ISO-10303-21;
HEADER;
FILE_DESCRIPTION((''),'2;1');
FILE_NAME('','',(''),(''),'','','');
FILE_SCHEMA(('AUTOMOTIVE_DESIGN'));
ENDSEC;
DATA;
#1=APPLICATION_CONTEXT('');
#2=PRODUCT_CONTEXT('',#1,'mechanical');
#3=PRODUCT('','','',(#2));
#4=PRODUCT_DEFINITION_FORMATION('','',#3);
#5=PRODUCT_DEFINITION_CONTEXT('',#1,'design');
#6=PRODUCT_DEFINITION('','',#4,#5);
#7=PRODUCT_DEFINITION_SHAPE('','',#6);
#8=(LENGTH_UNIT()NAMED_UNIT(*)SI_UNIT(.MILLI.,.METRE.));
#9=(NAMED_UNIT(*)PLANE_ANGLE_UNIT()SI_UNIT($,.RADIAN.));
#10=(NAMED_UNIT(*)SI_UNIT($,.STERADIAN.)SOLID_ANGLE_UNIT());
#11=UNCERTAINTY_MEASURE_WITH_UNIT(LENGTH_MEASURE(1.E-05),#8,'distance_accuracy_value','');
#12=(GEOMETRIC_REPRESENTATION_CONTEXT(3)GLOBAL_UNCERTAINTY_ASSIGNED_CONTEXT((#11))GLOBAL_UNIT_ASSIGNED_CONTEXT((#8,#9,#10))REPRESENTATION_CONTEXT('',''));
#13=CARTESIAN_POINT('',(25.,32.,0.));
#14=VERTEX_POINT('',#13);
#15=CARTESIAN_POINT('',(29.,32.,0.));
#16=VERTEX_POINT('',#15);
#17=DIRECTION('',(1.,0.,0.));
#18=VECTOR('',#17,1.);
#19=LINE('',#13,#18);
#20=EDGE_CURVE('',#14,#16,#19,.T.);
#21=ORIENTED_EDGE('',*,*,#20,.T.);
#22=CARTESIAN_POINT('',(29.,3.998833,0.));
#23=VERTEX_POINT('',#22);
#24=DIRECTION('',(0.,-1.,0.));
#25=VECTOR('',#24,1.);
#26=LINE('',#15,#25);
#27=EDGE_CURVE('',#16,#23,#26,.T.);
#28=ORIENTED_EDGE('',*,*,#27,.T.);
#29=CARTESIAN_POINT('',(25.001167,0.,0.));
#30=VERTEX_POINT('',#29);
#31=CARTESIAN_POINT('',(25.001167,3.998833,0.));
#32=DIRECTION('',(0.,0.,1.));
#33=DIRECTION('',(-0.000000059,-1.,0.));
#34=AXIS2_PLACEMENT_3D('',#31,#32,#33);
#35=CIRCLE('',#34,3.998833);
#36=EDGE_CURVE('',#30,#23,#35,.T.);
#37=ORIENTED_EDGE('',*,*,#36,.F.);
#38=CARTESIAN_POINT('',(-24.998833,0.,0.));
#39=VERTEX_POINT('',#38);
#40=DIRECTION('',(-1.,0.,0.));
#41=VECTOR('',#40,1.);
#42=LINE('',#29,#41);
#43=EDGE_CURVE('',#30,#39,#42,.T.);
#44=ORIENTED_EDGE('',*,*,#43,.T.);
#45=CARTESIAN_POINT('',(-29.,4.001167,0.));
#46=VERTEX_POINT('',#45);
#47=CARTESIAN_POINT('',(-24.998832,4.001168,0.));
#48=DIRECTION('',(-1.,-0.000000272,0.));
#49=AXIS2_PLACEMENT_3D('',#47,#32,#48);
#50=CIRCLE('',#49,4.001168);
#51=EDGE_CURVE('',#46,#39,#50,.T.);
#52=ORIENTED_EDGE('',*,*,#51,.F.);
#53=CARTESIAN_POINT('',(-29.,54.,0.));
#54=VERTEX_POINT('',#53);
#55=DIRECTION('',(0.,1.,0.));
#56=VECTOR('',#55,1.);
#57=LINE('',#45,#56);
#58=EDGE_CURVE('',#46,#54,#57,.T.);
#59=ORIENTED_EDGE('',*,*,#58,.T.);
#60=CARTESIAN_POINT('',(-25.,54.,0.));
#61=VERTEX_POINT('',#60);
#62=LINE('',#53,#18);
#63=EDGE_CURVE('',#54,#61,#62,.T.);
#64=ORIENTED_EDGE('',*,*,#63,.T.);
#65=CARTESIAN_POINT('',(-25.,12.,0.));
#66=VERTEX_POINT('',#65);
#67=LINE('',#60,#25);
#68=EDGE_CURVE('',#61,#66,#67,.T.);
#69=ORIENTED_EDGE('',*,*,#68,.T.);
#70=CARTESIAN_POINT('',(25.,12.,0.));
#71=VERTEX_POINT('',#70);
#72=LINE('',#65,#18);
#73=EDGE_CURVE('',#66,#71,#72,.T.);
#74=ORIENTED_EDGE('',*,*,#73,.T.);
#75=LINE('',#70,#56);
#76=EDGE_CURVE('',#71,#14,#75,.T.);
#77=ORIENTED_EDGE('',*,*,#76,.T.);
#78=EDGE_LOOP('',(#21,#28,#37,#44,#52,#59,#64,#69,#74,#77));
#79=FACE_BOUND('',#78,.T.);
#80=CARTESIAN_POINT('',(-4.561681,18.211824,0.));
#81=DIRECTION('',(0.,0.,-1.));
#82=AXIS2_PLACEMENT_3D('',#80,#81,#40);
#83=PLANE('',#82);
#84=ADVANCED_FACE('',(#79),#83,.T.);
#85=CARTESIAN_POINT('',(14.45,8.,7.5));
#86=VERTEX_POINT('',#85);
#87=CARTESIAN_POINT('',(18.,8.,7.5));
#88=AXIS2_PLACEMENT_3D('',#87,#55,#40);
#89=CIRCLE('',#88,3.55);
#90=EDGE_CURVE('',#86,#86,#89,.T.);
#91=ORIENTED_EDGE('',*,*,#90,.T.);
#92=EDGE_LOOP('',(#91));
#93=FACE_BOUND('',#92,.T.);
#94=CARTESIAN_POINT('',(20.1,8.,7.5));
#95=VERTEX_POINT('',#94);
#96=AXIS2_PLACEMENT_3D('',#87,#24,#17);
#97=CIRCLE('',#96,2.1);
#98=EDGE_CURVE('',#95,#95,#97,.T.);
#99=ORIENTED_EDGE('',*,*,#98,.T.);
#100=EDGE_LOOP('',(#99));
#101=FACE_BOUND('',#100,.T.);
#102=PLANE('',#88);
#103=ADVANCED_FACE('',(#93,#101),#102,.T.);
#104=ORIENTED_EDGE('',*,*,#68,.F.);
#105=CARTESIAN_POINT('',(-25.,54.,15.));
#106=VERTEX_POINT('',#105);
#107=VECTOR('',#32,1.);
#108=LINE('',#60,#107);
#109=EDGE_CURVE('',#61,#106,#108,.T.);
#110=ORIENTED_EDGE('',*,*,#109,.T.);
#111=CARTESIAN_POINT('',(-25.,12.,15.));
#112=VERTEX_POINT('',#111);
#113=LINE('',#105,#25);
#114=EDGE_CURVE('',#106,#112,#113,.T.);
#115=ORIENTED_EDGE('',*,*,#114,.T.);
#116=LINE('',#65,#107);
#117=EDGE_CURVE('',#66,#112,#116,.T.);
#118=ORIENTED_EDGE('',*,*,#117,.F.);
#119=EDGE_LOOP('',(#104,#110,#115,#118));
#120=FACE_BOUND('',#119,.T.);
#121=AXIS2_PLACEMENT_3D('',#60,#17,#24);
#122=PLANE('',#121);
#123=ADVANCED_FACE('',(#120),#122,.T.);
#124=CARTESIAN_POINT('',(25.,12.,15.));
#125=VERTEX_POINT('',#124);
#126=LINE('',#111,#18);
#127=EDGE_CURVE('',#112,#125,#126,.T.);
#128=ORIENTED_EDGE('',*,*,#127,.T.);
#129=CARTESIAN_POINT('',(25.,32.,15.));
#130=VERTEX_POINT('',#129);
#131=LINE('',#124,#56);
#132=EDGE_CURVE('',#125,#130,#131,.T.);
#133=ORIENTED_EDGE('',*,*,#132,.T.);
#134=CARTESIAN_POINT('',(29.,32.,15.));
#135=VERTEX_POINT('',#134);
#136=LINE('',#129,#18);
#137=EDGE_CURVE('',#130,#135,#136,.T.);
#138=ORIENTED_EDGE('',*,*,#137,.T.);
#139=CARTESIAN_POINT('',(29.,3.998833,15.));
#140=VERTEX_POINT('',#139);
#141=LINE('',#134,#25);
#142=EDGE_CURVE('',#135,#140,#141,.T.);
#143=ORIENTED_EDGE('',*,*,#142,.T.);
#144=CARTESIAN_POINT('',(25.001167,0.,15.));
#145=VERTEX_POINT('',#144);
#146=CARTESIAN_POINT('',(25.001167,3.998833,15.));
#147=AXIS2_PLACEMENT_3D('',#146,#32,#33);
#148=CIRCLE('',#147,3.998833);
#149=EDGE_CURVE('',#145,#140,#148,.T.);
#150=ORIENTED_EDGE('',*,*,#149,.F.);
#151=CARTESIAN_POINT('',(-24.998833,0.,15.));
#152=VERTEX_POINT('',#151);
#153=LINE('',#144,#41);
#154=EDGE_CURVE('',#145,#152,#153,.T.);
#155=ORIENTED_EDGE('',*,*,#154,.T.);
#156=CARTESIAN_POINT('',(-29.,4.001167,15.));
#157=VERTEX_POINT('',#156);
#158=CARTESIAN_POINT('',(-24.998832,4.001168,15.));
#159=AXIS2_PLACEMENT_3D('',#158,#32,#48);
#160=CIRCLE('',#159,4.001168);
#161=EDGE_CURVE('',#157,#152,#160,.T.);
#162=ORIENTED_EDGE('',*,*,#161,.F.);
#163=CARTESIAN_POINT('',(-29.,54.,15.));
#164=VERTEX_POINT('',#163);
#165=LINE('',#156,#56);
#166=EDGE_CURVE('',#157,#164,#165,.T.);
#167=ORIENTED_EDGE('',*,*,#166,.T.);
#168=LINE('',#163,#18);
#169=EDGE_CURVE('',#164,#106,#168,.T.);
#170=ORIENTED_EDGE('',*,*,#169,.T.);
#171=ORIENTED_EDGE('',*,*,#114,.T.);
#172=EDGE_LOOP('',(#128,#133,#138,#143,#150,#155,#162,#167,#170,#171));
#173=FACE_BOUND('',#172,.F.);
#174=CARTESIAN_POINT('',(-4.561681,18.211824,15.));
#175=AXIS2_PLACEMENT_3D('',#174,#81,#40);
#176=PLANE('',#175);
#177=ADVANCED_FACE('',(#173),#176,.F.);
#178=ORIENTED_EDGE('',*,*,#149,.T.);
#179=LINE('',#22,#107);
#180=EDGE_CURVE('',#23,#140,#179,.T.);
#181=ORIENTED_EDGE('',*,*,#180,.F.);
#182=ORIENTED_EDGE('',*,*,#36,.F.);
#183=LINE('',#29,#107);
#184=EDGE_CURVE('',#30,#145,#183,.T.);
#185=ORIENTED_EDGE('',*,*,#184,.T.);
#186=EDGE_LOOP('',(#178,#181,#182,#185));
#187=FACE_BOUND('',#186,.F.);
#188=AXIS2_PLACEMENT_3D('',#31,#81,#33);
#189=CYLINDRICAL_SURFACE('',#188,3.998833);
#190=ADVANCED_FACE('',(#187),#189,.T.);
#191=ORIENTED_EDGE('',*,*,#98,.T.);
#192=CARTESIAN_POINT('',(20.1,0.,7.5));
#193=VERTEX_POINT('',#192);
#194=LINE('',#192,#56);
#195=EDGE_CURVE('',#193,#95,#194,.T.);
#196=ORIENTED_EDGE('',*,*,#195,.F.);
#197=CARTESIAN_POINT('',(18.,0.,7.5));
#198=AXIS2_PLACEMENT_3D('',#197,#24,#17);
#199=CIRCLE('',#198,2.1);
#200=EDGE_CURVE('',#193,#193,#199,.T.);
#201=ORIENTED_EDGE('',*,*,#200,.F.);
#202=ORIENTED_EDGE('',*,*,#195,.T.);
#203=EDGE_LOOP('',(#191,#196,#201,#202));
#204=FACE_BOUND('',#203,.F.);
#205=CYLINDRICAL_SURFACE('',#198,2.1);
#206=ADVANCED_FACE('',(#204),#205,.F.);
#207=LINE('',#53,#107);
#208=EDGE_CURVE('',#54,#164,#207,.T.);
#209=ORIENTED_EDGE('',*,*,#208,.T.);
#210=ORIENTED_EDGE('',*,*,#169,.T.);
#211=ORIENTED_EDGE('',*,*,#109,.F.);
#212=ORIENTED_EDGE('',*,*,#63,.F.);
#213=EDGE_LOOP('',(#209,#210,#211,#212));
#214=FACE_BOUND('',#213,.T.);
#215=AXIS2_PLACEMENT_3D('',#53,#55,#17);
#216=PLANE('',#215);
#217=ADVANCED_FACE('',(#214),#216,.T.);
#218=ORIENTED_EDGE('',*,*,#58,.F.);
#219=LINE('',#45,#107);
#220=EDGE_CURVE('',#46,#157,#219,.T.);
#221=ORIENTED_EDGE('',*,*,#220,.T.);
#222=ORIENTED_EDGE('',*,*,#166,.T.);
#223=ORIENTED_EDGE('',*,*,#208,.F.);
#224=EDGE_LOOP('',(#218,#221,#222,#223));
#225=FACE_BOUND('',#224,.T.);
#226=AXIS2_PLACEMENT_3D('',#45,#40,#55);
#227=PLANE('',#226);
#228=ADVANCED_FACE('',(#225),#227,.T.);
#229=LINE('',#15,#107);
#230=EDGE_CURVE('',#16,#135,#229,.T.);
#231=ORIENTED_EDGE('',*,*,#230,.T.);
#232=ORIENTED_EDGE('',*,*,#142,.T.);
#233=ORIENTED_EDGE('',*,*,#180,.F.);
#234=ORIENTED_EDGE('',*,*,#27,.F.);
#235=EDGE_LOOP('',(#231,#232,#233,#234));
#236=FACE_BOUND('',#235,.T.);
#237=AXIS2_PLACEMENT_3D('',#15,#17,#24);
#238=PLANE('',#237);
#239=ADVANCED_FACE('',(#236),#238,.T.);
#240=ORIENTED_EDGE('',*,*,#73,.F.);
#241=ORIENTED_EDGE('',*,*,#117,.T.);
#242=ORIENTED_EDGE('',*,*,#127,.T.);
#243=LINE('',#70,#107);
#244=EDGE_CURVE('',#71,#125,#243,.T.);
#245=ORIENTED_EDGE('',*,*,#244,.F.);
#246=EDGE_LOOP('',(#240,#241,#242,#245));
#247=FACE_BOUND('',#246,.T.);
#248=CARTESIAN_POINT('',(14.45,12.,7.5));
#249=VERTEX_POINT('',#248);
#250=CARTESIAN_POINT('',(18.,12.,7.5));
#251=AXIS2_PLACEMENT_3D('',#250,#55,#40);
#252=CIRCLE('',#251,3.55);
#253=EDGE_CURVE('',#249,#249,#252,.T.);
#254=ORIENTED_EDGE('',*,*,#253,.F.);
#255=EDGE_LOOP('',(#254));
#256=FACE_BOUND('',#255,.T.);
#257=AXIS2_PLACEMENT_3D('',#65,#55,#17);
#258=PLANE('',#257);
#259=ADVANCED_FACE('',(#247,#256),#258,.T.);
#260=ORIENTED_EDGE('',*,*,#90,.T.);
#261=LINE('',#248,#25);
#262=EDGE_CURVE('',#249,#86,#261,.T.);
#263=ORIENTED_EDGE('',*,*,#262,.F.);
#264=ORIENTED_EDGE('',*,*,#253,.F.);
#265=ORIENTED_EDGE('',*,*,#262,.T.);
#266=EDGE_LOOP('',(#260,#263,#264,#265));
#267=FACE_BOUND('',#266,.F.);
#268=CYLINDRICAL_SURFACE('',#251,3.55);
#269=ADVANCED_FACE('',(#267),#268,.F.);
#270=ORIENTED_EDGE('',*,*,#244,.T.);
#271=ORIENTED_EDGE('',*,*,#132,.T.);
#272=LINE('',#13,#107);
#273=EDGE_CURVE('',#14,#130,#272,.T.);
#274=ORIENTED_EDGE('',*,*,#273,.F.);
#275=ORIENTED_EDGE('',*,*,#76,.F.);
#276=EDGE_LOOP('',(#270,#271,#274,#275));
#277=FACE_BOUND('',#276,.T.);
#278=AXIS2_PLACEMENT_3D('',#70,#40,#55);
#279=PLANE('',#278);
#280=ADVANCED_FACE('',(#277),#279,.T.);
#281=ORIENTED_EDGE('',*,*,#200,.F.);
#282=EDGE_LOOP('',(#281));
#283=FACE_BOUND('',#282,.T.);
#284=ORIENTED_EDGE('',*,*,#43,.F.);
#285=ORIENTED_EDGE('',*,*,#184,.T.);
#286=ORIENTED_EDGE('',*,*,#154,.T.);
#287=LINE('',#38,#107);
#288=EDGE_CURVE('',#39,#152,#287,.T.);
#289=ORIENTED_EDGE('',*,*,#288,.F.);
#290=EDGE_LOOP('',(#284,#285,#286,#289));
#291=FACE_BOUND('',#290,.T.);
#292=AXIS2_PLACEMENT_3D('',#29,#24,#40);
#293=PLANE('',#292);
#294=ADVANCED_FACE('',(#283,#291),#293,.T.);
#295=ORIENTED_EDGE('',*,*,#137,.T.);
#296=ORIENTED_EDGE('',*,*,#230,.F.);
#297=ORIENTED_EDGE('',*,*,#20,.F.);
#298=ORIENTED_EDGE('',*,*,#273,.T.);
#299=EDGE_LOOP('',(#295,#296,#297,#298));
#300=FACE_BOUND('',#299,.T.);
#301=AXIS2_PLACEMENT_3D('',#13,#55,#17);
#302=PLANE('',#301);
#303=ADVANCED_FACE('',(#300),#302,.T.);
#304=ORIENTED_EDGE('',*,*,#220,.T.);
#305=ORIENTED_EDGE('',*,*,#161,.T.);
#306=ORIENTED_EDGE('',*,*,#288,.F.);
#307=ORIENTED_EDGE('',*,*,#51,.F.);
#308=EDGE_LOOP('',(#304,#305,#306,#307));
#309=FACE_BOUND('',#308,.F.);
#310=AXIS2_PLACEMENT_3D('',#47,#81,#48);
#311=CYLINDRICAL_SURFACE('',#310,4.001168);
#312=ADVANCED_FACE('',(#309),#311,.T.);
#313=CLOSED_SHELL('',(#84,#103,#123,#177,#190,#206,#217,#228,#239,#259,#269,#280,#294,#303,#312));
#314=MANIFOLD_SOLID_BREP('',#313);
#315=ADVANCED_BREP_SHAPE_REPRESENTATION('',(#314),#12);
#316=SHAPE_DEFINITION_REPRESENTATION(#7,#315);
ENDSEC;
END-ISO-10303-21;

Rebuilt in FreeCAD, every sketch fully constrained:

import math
import FreeCAD as App
import Part
import Sketcher
Q = App.Units.Quantity

doc = App.newDocument("Part")
body = doc.addObject("PartDesign::Body", "Body")

# Sketch on XY plane
sketch1 = body.newObject("Sketcher::SketchObject", "Sketch")
sketch1.AttachmentSupport = (doc.getObject("XY_Plane"), [""])
sketch1.MapMode = "FlatFace"
sketch1.addGeometry([
    Part.LineSegment(App.Vector(25, 12, 0), App.Vector(-25, 12, 0)),  # 0
    Part.LineSegment(App.Vector(-25, 12, 0), App.Vector(-25, 54, 0)),  # 1
    Part.LineSegment(App.Vector(-25, 54, 0), App.Vector(-29, 54, 0)),  # 2
    Part.LineSegment(App.Vector(-29, 54, 0), App.Vector(-29, 4.001167, 0)),  # 3
    Part.ArcOfCircle(Part.Circle(App.Vector(-24.998832, 4.001168, 0), App.Vector(0, 0, 1), 4.001168), math.radians(-179.999984), math.radians(-90.000016)),  # 4
    Part.LineSegment(App.Vector(-24.998833, 0, 0), App.Vector(25.001167, 0, 0)),  # 5
    Part.ArcOfCircle(Part.Circle(App.Vector(25.001167, 3.998833, 0), App.Vector(0, 0, 1), 3.998833), math.radians(-90.000003), math.radians(0.000003)),  # 6
    Part.LineSegment(App.Vector(29, 3.998833, 0), App.Vector(29, 32, 0)),  # 7
    Part.LineSegment(App.Vector(29, 32, 0), App.Vector(25, 32, 0)),  # 8
    Part.LineSegment(App.Vector(25, 32, 0), App.Vector(25, 12, 0)),  # 9
], False)
sketch1.addConstraint([
    Sketcher.Constraint("Coincident", 0, 2, 1, 1),
    Sketcher.Constraint("Coincident", 1, 2, 2, 1),
    Sketcher.Constraint("Coincident", 2, 2, 3, 1),
    Sketcher.Constraint("Tangent", 3, 2, 4, 1),
    Sketcher.Constraint("Tangent", 4, 2, 5, 1),
    Sketcher.Constraint("Tangent", 5, 2, 6, 1),
    Sketcher.Constraint("Tangent", 6, 2, 7, 1),
    Sketcher.Constraint("Coincident", 7, 2, 8, 1),
    Sketcher.Constraint("Coincident", 8, 2, 9, 1),
    Sketcher.Constraint("Coincident", 9, 2, 0, 1),
    Sketcher.Constraint("Horizontal", 0),
    Sketcher.Constraint("Vertical", 1),
    Sketcher.Constraint("Horizontal", 2),
    Sketcher.Constraint("Vertical", 3),
    Sketcher.Constraint("Horizontal", 5),
    Sketcher.Constraint("Vertical", 7),
    Sketcher.Constraint("Horizontal", 8),
    Sketcher.Constraint("Vertical", 9),
    Sketcher.Constraint("PointOnObject", 4, 2, -1),
    Sketcher.Constraint("Equal", 0, 5),
    Sketcher.Constraint("Equal", 2, 8),
    Sketcher.Constraint("DistanceX", 0, 2, 0, 1, Q("50 mm")),
    Sketcher.Constraint("DistanceX", 2, 2, 2, 1, Q("4 mm")),
    Sketcher.Constraint("DistanceY", 1, 1, 1, 2, Q("42 mm")),
    Sketcher.Constraint("DistanceY", 9, 2, 9, 1, Q("20 mm")),
    Sketcher.Constraint("DistanceX", 0, 2, -1, 1, Q("25 mm")),
    Sketcher.Constraint("DistanceY", -1, 1, 0, 2, Q("12 mm")),
    Sketcher.Constraint("Radius", 4, Q("4.001168 mm")),
])
pad1 = body.newObject("PartDesign::Pad", "Pad")
pad1.Profile = sketch1
pad1.Length = 15

# Sketch on XZ plane
sketch2 = body.newObject("Sketcher::SketchObject", "Sketch001")
sketch2.AttachmentSupport = (doc.getObject("XZ_Plane"), [""])
sketch2.MapMode = "FlatFace"
sketch2.addGeometry(Part.Circle(App.Vector(18, 7.5, 0), App.Vector(0, 0, 1), 2.1), False)
sketch2.addConstraint([
    Sketcher.Constraint("Diameter", 0, Q("4.2 mm")),
    Sketcher.Constraint("DistanceX", -1, 1, 0, 3, Q("18 mm")),
    Sketcher.Constraint("DistanceY", -1, 1, 0, 3, Q("7.5 mm")),
])
pocket1 = body.newObject("PartDesign::Pocket", "Pocket")
pocket1.Profile = sketch2
pocket1.Type = "ThroughAll"

# Sketch on XZ plane
sketch3 = body.newObject("Sketcher::SketchObject", "Sketch002")
sketch3.AttachmentSupport = (doc.getObject("XZ_Plane"), [""])
sketch3.MapMode = "FlatFace"
sketch3.AttachmentOffset = App.Placement(App.Vector(0, 0, -12), App.Rotation())
sketch3.addGeometry(Part.Circle(App.Vector(18, 7.5, 0), App.Vector(0, 0, 1), 3.55), False)
sketch3.addConstraint([
    Sketcher.Constraint("Diameter", 0, Q("7.1 mm")),
    Sketcher.Constraint("DistanceX", -1, 1, 0, 3, Q("18 mm")),
    Sketcher.Constraint("DistanceY", -1, 1, 0, 3, Q("7.5 mm")),
])
pocket2 = body.newObject("PartDesign::Pocket", "Pocket001")
pocket2.Profile = sketch3
pocket2.Length = 4
pocket2.Reversed = True

doc.recompute()
